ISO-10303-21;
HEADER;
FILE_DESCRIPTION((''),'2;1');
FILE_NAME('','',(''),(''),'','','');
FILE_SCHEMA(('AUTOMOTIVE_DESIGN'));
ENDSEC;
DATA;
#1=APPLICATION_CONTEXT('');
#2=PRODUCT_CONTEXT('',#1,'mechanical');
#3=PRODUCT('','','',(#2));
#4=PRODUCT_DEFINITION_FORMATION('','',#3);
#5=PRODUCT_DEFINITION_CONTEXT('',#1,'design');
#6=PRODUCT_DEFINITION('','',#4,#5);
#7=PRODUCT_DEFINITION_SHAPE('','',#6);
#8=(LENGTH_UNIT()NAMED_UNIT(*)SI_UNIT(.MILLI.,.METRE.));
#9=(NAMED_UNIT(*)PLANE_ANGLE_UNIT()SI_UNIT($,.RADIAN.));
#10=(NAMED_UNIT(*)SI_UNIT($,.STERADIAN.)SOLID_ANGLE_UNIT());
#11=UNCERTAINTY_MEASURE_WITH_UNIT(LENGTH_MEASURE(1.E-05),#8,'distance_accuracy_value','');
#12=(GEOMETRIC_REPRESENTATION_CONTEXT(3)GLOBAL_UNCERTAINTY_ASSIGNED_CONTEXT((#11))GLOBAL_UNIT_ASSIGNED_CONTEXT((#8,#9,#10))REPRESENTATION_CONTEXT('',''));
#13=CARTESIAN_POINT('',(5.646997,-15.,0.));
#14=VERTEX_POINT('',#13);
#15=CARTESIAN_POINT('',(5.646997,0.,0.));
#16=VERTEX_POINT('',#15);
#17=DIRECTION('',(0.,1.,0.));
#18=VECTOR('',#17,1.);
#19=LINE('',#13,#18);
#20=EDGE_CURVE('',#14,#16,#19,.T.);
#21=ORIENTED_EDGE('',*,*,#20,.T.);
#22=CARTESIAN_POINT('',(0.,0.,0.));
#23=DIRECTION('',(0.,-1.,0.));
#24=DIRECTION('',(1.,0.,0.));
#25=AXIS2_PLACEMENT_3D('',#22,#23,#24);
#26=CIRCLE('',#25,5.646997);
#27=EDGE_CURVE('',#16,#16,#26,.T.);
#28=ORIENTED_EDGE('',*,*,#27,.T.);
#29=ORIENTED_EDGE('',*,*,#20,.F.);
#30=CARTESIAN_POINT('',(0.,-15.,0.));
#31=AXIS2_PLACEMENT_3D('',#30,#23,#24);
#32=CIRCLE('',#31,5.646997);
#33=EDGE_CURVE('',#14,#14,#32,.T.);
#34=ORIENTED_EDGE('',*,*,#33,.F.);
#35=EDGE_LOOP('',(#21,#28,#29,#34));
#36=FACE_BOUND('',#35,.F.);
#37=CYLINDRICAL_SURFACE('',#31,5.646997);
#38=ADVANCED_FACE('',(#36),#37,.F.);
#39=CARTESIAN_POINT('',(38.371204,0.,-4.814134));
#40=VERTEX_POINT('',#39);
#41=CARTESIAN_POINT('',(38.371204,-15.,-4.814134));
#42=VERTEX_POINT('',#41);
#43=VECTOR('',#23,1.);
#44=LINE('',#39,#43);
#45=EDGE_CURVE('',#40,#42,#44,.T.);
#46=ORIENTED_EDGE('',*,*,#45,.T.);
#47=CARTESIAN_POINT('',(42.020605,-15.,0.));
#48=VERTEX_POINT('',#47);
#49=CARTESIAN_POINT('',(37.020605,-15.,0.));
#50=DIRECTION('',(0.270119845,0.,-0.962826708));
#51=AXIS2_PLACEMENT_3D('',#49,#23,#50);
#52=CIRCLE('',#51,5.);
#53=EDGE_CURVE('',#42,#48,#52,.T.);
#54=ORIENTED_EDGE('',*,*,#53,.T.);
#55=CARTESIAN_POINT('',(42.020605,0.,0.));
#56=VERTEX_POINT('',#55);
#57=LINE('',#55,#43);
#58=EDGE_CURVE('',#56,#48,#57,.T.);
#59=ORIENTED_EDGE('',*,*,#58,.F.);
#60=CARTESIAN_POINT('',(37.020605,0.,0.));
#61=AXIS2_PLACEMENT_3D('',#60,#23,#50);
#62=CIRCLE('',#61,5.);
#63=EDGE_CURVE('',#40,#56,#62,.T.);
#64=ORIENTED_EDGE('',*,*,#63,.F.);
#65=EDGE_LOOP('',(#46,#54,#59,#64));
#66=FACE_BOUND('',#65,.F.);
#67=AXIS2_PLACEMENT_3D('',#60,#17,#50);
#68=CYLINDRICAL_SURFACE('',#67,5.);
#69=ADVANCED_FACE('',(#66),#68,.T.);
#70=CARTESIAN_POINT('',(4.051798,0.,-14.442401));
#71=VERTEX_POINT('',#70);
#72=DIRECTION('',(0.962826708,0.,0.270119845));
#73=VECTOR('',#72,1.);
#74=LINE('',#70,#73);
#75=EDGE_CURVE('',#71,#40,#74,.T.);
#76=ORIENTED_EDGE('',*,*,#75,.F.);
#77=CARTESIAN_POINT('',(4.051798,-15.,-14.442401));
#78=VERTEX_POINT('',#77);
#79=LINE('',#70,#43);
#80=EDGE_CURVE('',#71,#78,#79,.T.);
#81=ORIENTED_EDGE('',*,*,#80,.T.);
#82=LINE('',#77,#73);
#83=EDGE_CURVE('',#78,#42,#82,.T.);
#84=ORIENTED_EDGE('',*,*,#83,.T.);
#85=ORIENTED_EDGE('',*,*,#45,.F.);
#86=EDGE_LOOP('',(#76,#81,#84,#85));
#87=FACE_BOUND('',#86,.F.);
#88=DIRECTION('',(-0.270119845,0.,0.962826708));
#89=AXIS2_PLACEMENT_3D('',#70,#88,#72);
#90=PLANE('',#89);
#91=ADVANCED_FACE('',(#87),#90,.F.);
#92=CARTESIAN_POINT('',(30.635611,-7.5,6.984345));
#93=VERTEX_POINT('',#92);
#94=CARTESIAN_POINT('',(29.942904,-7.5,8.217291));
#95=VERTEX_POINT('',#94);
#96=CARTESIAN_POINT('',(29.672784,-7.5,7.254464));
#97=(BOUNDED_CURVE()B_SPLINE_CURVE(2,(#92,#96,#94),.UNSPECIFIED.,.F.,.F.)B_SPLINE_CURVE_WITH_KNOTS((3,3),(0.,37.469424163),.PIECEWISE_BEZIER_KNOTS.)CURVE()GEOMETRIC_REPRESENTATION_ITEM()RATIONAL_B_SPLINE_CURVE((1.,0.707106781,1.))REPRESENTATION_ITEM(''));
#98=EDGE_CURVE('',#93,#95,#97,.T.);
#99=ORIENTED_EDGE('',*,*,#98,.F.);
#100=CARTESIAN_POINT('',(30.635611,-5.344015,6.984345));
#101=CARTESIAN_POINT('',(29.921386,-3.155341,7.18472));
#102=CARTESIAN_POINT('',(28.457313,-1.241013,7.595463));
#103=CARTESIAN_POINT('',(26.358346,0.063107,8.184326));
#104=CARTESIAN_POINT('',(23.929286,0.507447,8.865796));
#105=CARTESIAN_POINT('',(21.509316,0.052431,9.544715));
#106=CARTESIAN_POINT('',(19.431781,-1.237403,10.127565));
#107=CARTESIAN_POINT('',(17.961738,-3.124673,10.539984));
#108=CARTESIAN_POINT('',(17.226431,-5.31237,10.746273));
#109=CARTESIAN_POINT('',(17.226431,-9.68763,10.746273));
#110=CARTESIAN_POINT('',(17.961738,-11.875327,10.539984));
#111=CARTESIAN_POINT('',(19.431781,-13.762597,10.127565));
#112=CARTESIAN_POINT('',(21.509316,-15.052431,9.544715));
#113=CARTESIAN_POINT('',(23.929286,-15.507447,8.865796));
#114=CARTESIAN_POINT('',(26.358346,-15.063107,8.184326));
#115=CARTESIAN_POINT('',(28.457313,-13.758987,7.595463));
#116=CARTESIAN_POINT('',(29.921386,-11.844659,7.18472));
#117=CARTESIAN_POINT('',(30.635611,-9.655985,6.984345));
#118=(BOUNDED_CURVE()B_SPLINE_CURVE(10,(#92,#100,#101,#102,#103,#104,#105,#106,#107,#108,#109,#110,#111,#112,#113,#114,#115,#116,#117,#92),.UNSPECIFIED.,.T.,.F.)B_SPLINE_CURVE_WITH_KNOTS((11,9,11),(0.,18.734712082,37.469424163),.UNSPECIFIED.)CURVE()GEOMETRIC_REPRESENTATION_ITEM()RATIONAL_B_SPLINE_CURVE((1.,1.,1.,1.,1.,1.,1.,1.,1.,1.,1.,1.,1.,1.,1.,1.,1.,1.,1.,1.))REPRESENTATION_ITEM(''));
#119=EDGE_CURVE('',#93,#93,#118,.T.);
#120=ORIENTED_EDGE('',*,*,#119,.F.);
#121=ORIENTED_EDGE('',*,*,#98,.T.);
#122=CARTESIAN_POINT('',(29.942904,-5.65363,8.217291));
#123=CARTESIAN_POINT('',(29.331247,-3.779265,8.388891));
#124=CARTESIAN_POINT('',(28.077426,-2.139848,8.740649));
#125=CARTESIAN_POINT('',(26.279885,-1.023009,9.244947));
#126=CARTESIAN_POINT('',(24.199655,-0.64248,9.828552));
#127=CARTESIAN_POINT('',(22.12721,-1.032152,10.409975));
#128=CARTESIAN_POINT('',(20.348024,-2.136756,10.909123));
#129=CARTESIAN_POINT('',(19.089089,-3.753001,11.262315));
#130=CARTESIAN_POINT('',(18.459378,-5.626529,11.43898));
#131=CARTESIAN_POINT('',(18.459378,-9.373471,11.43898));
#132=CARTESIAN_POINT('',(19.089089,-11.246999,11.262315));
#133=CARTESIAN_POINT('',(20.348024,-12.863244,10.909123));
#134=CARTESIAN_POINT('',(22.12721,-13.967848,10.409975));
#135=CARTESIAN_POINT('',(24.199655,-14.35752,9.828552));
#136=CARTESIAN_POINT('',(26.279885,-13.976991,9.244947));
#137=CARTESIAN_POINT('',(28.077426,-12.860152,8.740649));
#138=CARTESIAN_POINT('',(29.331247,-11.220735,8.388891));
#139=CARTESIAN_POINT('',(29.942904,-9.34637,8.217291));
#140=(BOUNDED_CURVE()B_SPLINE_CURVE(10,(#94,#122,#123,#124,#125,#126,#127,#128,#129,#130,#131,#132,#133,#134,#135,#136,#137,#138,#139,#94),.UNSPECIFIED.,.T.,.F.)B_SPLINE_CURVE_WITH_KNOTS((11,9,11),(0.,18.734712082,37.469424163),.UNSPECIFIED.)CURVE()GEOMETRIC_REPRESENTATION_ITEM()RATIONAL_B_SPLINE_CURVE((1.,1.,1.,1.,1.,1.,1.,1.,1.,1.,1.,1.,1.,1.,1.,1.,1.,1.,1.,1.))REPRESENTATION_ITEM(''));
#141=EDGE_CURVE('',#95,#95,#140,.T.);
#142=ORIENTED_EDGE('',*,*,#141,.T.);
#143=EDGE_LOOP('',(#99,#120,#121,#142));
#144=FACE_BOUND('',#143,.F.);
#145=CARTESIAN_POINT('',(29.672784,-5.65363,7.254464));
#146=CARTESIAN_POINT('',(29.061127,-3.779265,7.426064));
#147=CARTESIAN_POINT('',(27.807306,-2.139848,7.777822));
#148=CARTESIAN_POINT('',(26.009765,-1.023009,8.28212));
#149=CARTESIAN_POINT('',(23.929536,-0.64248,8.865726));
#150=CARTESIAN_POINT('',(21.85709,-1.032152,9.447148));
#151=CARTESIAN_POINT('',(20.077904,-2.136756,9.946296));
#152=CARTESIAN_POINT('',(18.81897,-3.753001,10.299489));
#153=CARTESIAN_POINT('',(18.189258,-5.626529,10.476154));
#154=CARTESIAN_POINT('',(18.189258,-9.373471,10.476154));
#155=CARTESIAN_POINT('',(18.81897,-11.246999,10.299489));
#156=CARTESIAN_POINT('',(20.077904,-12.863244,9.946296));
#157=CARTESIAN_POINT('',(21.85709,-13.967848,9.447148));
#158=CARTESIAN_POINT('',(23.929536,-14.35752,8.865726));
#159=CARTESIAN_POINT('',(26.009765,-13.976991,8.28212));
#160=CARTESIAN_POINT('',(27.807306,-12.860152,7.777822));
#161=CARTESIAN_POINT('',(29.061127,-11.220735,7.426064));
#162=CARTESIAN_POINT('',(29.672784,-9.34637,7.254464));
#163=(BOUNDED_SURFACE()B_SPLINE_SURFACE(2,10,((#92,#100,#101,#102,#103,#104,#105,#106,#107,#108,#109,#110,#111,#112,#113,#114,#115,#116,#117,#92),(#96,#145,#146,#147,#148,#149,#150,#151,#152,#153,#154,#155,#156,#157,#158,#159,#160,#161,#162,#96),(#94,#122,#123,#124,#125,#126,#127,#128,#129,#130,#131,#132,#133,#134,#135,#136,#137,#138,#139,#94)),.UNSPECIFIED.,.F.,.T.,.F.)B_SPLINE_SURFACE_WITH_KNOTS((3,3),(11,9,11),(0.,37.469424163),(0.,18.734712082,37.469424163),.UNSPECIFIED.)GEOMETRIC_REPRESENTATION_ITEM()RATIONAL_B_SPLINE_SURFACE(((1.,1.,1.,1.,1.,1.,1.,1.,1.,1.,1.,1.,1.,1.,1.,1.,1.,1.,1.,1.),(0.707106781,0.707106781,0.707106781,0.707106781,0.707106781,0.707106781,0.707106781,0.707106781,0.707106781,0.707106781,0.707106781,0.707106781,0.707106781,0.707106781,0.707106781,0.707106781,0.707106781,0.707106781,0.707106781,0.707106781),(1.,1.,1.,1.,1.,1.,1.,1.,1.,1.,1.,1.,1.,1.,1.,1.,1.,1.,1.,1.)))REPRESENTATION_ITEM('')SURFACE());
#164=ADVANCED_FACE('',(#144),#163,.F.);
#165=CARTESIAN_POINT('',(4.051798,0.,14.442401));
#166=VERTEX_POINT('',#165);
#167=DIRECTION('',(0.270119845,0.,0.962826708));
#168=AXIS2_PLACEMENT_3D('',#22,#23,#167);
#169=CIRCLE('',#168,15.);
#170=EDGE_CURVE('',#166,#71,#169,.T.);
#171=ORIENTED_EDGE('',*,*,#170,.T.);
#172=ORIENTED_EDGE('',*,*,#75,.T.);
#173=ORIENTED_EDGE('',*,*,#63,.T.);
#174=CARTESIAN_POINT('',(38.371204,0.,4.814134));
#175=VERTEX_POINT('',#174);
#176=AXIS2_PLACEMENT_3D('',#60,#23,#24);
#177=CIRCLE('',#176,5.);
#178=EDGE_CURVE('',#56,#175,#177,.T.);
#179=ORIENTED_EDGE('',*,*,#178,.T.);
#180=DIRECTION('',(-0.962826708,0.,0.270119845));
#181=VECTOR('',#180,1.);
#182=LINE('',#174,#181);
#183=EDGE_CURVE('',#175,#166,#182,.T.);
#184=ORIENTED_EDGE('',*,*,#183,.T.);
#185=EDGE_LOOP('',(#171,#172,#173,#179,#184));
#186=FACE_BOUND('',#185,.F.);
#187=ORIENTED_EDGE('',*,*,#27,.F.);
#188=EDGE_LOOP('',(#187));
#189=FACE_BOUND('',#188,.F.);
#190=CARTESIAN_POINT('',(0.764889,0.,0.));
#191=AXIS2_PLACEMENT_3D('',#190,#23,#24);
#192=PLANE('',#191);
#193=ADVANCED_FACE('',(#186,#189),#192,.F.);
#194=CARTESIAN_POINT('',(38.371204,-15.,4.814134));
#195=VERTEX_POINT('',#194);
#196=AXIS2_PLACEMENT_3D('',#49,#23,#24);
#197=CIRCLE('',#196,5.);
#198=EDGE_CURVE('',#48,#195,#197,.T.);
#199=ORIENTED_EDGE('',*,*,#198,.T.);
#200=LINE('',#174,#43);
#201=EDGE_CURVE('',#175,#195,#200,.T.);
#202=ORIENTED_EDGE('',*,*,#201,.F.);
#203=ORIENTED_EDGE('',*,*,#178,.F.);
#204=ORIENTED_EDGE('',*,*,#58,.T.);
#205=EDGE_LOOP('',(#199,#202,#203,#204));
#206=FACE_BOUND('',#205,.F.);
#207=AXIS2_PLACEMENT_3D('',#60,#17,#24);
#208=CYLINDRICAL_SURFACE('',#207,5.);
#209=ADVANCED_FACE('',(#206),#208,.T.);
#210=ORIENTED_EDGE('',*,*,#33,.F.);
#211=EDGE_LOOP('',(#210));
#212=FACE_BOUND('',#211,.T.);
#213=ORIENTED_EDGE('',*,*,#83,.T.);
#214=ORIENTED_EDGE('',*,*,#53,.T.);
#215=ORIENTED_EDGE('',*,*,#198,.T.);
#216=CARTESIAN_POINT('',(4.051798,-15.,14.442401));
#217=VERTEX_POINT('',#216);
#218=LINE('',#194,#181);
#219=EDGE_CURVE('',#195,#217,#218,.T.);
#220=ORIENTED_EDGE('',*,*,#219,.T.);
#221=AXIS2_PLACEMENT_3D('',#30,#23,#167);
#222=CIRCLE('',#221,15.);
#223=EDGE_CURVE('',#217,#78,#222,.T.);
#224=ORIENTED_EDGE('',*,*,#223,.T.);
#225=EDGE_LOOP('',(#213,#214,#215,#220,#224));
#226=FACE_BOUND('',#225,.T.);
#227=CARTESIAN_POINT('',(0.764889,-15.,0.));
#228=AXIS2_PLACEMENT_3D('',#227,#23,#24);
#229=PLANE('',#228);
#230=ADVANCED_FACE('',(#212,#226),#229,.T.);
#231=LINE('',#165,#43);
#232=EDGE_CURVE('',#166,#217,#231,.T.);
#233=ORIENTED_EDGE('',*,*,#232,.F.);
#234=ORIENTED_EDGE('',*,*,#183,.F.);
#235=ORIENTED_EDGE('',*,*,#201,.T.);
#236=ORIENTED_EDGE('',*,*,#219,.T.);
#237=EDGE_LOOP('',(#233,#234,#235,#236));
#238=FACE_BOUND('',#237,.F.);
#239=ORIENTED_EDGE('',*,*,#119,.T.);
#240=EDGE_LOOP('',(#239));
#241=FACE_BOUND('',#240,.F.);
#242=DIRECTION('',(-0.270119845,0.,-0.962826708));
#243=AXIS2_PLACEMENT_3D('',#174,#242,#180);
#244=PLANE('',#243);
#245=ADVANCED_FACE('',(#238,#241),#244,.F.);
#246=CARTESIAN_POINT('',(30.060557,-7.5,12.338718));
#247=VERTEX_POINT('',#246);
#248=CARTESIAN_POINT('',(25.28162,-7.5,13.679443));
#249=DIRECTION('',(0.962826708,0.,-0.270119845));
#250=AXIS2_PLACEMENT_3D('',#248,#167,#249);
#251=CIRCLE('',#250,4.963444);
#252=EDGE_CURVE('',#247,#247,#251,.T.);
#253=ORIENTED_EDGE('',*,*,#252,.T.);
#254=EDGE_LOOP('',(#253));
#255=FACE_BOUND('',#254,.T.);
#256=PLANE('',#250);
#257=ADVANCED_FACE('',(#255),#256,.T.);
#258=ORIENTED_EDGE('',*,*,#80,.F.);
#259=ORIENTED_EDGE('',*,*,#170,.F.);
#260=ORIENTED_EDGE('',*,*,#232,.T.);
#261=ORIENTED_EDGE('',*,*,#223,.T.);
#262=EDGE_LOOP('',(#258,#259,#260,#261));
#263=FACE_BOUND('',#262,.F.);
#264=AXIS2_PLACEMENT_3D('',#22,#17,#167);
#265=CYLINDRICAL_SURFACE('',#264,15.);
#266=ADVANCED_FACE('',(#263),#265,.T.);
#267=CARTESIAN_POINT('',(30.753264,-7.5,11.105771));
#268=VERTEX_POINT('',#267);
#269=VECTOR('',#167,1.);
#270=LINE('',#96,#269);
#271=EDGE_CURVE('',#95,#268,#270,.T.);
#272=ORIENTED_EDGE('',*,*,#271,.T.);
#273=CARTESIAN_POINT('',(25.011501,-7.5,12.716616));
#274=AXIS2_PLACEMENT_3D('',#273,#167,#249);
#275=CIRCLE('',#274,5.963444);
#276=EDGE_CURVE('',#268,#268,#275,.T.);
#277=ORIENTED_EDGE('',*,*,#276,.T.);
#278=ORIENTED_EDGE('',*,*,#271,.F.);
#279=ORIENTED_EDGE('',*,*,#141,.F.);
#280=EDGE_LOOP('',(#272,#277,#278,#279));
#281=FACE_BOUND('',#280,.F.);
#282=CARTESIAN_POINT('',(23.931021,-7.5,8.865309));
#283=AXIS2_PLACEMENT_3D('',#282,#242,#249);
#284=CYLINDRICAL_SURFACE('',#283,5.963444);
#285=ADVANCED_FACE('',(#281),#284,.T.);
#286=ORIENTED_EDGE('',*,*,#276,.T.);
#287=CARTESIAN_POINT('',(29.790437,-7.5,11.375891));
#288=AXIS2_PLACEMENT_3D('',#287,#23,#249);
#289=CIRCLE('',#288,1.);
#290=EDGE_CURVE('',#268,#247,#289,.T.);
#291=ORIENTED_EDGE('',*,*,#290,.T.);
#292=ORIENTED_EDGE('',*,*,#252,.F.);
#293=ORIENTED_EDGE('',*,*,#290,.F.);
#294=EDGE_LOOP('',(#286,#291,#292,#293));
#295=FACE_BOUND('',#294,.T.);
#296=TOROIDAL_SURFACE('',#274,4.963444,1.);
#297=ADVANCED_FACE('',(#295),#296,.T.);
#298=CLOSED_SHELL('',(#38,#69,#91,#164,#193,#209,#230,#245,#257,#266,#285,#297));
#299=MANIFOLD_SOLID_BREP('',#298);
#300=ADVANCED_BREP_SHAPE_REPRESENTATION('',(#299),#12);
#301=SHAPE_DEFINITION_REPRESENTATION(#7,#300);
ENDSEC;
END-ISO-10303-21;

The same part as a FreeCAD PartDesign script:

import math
import FreeCAD as App
import Part
import Sketcher
from FreeCAD import Vector
Q = App.Units.Quantity


def edges_at(feature, points):
    """Names of the edges that pass closest to the given points."""
    edges = feature.Shape.Edges
    near = lambda p: min(range(len(edges)), key=lambda i: edges[i].distToShape(Part.Vertex(*p))[0])
    return sorted({f"Edge{near(p) + 1}" for p in points})

doc = App.newDocument("Part")
body = doc.addObject("PartDesign::Body", "Body")

# Sketch on XZ plane
sketch1 = body.newObject("Sketcher::SketchObject", "Sketch")
sketch1.AttachmentSupport = (doc.getObject("XZ_Plane"), [""])
sketch1.MapMode = "FlatFace"
sketch1.addGeometry([
    Part.ArcOfCircle(Part.Circle(Vector(0, 0, 0), Vector(0, 0, 1), 15), math.radians(74), math.radians(286)),  # 0
    Part.LineSegment(Vector(4, -14, 0), Vector(38, -5, 0)),  # 1
    Part.ArcOfCircle(Part.Circle(Vector(37, 0, 0), Vector(0, 0, 1), 5), math.radians(-74), math.radians(0)),  # 2
    Part.ArcOfCircle(Part.Circle(Vector(37, 0, 0), Vector(0, 0, 1), 5), math.radians(0), math.radians(74)),  # 3
    Part.LineSegment(Vector(38, 5, 0), Vector(4, 14, 0)),  # 4
], False)
sketch1.addConstraint([
    Sketcher.Constraint("Tangent", 0, 2, 1, 1),
    Sketcher.Constraint("Tangent", 1, 2, 2, 1),
    Sketcher.Constraint("Tangent", 2, 2, 3, 1),
    Sketcher.Constraint("Tangent", 3, 2, 4, 1),
    Sketcher.Constraint("Tangent", 4, 2, 0, 1),
    Sketcher.Constraint("Coincident", 0, 3, -1, 1),
    Sketcher.Constraint("Equal", 2, 3),
    Sketcher.Constraint("PointOnObject", 2, 3, -1),
    Sketcher.Constraint("PointOnObject", 2, 2, -1),
    Sketcher.Constraint("Radius", 0, Q("15 mm")),
    Sketcher.Constraint("Radius", 2, Q("5 mm")),
    Sketcher.Constraint("DistanceY", 0, 2, -1, 1, Q("14.442401 mm")),
])
pad1 = body.newObject("PartDesign::Pad", "Pad")
pad1.Profile = sketch1
pad1.Length = 15

# Sketch on XZ plane
sketch2 = body.newObject("Sketcher::SketchObject", "Sketch001")
sketch2.AttachmentSupport = (doc.getObject("XZ_Plane"), [""])
sketch2.MapMode = "FlatFace"
sketch2.AttachmentOffset = App.Placement(Vector(0, 0, 15), App.Rotation())
sketch2.addGeometry(Part.Circle(Vector(0, 0, 0), Vector(0, 0, 1), 6), False)
sketch2.addConstraint([
    Sketcher.Constraint("Coincident", 0, 3, -1, 1),
    Sketcher.Constraint("Diameter", 0, Q("11.293994 mm")),
])
pocket1 = body.newObject("PartDesign::Pocket", "Pocket")
pocket1.Profile = sketch2
pocket1.Length = 16

# Sketch on an angled plane
sketch3 = body.newObject("Sketcher::SketchObject", "Sketch002")
sketch3.Placement = App.Placement(Vector(4.051798, 0, 14.442401), App.Rotation(Vector(0.962826708, 0, -0.270119845), Vector(0, 1, 0), Vector(0.270119845, 0, 0.962826708), "ZXY"))
sketch3.addGeometry(Part.Circle(Vector(21, -8, 0), Vector(0, 0, 1), 6), False)
sketch3.addConstraint([
    Sketcher.Constraint("DistanceY", 0, 3, -1, 1, Q("7.5 mm")),
    Sketcher.Constraint("Diameter", 0, Q("11.926888 mm")),
    Sketcher.Constraint("DistanceX", -1, 1, 0, 3, Q("20.64673 mm")),
])
pad2 = body.newObject("PartDesign::Pad", "Pad001")
pad2.Profile = sketch3
pad2.Length = 5
doc.recompute()

fillet = body.newObject("PartDesign::Fillet", "Fillet")
fillet.Base = (pad2, edges_at(pad2, [(19.54, -7.5, 15.29), (18.189, -7.5, 10.476)]))
fillet.Radius = 1

doc.recompute()
